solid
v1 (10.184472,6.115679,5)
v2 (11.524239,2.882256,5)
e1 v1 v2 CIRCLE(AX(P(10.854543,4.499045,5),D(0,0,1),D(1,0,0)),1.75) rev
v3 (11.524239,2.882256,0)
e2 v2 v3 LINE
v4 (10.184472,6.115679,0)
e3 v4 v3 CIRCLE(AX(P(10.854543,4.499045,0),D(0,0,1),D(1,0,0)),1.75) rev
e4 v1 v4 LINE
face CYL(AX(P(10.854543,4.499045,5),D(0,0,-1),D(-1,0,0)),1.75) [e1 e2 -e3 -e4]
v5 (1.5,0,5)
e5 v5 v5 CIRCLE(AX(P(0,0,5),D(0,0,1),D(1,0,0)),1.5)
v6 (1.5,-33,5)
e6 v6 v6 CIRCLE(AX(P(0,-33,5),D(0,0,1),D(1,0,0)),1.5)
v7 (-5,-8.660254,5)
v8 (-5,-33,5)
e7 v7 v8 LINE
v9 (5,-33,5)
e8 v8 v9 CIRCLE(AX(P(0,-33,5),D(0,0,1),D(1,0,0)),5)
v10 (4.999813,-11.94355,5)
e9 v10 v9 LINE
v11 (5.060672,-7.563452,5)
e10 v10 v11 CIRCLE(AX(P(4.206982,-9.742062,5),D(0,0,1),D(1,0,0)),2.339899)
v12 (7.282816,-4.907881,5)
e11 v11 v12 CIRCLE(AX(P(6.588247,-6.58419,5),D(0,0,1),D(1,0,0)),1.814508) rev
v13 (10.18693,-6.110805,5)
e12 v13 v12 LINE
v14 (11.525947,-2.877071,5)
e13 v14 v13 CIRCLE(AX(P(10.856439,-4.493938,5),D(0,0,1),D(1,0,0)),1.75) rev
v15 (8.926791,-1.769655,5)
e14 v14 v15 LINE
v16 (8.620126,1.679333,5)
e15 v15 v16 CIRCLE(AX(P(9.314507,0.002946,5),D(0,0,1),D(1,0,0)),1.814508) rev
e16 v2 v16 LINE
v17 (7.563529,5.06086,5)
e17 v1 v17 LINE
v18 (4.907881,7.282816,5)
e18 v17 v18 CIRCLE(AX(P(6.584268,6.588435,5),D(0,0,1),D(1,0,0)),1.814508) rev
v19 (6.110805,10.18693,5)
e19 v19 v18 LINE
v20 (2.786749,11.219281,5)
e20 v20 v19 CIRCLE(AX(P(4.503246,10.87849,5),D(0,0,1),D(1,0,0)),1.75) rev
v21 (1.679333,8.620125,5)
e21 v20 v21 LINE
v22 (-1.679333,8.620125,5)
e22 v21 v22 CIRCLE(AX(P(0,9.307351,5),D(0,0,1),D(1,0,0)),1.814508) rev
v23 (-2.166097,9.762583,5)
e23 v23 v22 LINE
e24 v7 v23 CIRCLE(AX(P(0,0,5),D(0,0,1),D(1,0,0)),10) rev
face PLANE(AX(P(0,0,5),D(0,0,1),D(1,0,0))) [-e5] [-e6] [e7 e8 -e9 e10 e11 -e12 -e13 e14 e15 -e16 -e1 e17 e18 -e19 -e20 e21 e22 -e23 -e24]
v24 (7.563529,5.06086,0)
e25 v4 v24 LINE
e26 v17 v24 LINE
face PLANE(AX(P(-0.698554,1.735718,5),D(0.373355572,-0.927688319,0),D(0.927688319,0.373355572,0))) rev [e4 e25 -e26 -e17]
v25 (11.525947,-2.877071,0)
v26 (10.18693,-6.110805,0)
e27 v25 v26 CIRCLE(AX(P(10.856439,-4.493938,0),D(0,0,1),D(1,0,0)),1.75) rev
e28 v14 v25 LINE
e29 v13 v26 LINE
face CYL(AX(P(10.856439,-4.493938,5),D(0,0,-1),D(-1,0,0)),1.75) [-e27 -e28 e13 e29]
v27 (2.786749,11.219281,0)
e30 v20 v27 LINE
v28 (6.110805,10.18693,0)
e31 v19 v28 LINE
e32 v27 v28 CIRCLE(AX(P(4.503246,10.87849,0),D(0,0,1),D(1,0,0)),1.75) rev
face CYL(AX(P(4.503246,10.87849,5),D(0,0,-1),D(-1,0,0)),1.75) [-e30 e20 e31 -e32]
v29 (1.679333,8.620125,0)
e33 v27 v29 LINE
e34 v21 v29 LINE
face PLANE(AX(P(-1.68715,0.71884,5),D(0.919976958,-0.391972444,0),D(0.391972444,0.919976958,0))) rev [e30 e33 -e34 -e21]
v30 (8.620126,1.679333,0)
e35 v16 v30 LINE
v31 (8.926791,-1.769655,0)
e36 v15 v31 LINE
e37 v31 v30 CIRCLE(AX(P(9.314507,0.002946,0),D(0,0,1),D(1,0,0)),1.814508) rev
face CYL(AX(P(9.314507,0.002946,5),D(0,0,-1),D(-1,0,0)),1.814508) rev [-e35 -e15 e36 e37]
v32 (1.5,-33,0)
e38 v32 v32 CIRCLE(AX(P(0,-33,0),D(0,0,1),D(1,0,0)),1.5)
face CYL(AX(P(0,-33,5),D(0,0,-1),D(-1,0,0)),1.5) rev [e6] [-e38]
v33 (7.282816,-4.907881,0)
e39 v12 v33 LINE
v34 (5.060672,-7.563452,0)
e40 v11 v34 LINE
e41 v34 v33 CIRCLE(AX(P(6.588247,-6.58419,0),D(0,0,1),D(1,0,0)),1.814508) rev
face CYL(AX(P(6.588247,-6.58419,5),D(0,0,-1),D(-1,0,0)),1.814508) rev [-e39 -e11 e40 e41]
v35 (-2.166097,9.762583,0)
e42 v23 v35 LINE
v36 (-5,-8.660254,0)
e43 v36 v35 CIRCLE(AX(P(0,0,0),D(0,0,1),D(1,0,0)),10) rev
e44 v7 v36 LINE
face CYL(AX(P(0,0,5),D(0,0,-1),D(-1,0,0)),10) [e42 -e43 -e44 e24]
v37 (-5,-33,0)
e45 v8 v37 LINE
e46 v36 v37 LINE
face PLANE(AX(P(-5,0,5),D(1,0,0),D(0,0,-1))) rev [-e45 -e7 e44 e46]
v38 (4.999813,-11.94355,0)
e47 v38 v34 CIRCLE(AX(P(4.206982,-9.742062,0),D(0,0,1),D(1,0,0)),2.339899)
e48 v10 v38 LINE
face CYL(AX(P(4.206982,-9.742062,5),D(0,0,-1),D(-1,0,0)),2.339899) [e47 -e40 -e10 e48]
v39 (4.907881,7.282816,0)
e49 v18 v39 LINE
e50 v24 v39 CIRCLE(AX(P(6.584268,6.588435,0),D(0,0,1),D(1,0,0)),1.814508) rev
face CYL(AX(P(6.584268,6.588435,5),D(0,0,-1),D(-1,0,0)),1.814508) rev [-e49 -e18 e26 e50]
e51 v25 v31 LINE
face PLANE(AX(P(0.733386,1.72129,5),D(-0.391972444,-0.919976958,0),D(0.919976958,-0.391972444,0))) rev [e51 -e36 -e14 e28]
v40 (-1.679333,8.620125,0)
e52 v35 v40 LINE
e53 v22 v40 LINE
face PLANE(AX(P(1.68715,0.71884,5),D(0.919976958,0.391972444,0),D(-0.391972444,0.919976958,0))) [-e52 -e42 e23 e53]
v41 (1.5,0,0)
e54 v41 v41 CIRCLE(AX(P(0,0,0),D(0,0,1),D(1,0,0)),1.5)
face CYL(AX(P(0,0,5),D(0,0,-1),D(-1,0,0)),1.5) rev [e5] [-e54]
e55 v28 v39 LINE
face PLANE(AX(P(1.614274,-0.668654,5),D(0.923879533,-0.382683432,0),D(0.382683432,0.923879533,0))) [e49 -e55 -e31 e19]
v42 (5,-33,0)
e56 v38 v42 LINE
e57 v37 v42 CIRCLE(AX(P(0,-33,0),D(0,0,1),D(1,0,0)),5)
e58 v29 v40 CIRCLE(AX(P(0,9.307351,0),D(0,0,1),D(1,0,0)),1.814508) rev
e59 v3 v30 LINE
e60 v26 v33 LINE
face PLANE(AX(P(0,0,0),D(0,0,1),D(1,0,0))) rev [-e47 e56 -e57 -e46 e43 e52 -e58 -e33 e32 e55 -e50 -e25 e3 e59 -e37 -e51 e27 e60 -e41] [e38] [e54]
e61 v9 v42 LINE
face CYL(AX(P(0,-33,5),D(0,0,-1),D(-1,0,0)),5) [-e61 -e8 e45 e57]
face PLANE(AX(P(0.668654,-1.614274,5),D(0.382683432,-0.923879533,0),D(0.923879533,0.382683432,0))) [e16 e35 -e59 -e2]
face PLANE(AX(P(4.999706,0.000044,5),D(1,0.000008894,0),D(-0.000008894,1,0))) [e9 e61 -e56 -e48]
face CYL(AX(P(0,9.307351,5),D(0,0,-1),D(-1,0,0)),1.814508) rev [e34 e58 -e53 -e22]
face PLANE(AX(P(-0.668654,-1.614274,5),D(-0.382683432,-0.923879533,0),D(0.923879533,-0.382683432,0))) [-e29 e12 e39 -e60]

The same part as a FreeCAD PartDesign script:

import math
import FreeCAD as App
import Part
import Sketcher
Q = App.Units.Quantity

doc = App.newDocument("Part")
body = doc.addObject("PartDesign::Body", "Body")

sketch1 = doc.addObject("Sketcher::SketchObject", "Sketch")
body.addObject(sketch1)
sketch1.AttachmentSupport = (doc.XY_Plane, [""])
sketch1.MapMode = "FlatFace"
sketch1.addGeometry(Part.LineSegment(App.Vector(2.8, 11.2, 0), App.Vector(1.7, 8.6, 0)), False)
sketch1.addGeometry(Part.ArcOfCircle(Part.Circle(App.Vector(0, 9.3, 0), App.Vector(0, 0, 1), 1.8), math.radians(-158), math.radians(-22)), False)
sketch1.addGeometry(Part.LineSegment(App.Vector(-1.7, 8.6, 0), App.Vector(-2.2, 9.8, 0)), False)
sketch1.addGeometry(Part.ArcOfCircle(Part.Circle(App.Vector(0, 0, 0), App.Vector(0, 0, 1), 10), math.radians(103), math.radians(240)), False)
sketch1.addGeometry(Part.LineSegment(App.Vector(-5, -8.7, 0), App.Vector(-5, -33, 0)), False)
sketch1.addGeometry(Part.ArcOfCircle(Part.Circle(App.Vector(0, -33, 0), App.Vector(0, 0, 1), 5), math.radians(180), math.radians(360)), False)
sketch1.addGeometry(Part.LineSegment(App.Vector(5, -33, 0), App.Vector(5, -11.9, 0)), False)
sketch1.addGeometry(Part.ArcOfCircle(Part.Circle(App.Vector(4.2, -9.7, 0), App.Vector(0, 0, 1), 2.3), math.radians(-70), math.radians(69)), False)
sketch1.addGeometry(Part.ArcOfCircle(Part.Circle(App.Vector(6.6, -6.6, 0), App.Vector(0, 0, 1), 1.8), math.radians(67), math.radians(213)), False)
sketch1.addGeometry(Part.LineSegment(App.Vector(7.3, -4.9, 0), App.Vector(10.2, -6.1, 0)), False)
sketch1.addGeometry(Part.ArcOfCircle(Part.Circle(App.Vector(10.9, -4.5, 0), App.Vector(0, 0, 1), 1.7), math.radians(-112), math.radians(68)), False)
sketch1.addGeometry(Part.LineSegment(App.Vector(11.5, -2.9, 0), App.Vector(8.9, -1.8, 0)), False)
sketch1.addGeometry(Part.ArcOfCircle(Part.Circle(App.Vector(9.3, 0, 0), App.Vector(0, 0, 1), 1.8), math.radians(112), math.radians(258)), False)
sketch1.addGeometry(Part.LineSegment(App.Vector(8.6, 1.7, 0), App.Vector(11.5, 2.9, 0)), False)
sketch1.addGeometry(Part.ArcOfCircle(Part.Circle(App.Vector(10.9, 4.5, 0), App.Vector(0, 0, 1), 1.8), math.radians(-67), math.radians(113)), False)
sketch1.addGeometry(Part.LineSegment(App.Vector(10.2, 6.1, 0), App.Vector(7.6, 5.1, 0)), False)
sketch1.addGeometry(Part.ArcOfCircle(Part.Circle(App.Vector(6.6, 6.6, 0), App.Vector(0, 0, 1), 1.8), math.radians(158), math.radians(303)), False)
sketch1.addGeometry(Part.LineSegment(App.Vector(4.9, 7.3, 0), App.Vector(6.1, 10.2, 0)), False)
sketch1.addGeometry(Part.ArcOfCircle(Part.Circle(App.Vector(4.5, 10.9, 0), App.Vector(0, 0, 1), 1.8), math.radians(-23), math.radians(169)), False)
sketch1.addGeometry(Part.Circle(App.Vector(0, -33, 0), App.Vector(0, 0, 1), 1.5), False)
sketch1.addGeometry(Part.Circle(App.Vector(0, 0, 0), App.Vector(0, 0, 1), 1.5), False)
sketch1.addConstraint(Sketcher.Constraint("Coincident", 0, 2, 1, 2))
sketch1.addConstraint(Sketcher.Constraint("Coincident", 1, 1, 2, 1))
sketch1.addConstraint(Sketcher.Constraint("Coincident", 2, 2, 3, 1))
sketch1.addConstraint(Sketcher.Constraint("Coincident", 3, 2, 4, 1))
sketch1.addConstraint(Sketcher.Constraint("Tangent", 4, 2, 5, 1))
sketch1.addConstraint(Sketcher.Constraint("Coincident", 5, 2, 6, 1))
sketch1.addConstraint(Sketcher.Constraint("Coincident", 6, 2, 7, 1))
sketch1.addConstraint(Sketcher.Constraint("Coincident", 7, 2, 8, 2))
sketch1.addConstraint(Sketcher.Constraint("Coincident", 8, 1, 9, 1))
sketch1.addConstraint(Sketcher.Constraint("Coincident", 9, 2, 10, 1))
sketch1.addConstraint(Sketcher.Constraint("Coincident", 10, 2, 11, 1))
sketch1.addConstraint(Sketcher.Constraint("Coincident", 11, 2, 12, 2))
sketch1.addConstraint(Sketcher.Constraint("Tangent", 12, 1, 13, 1))
sketch1.addConstraint(Sketcher.Constraint("Tangent", 13, 2, 14, 1))
sketch1.addConstraint(Sketcher.Constraint("Coincident", 14, 2, 15, 1))
sketch1.addConstraint(Sketcher.Constraint("Coincident", 15, 2, 16, 2))
sketch1.addConstraint(Sketcher.Constraint("Tangent", 16, 1, 17, 1))
sketch1.addConstraint(Sketcher.Constraint("Coincident", 17, 2, 18, 1))
sketch1.addConstraint(Sketcher.Constraint("Coincident", 18, 2, 0, 1))
sketch1.addConstraint(Sketcher.Constraint("Vertical", 4))
sketch1.addConstraint(Sketcher.Constraint("Coincident", 3, 3, -1, 1))
sketch1.addConstraint(Sketcher.Constraint("Coincident", 20, 3, -1, 1))
sketch1.addConstraint(Sketcher.Constraint("Coincident", 19, 3, 5, 3))
sketch1.addConstraint(Sketcher.Constraint("Equal", 1, 8))
sketch1.addConstraint(Sketcher.Constraint("Equal", 8, 12))
sketch1.addConstraint(Sketcher.Constraint("Equal", 10, 14))
sketch1.addConstraint(Sketcher.Constraint("Equal", 12, 16))
sketch1.addConstraint(Sketcher.Constraint("Equal", 14, 18))
sketch1.addConstraint(Sketcher.Constraint("Equal", 19, 20))
sketch1.addConstraint(Sketcher.Constraint("Symmetric", 0, 2, 1, 1, -2))
sketch1.addConstraint(Sketcher.Constraint("Symmetric", 4, 2, 5, 2, -2))
sketch1.addConstraint(Sketcher.Constraint("Perpendicular", 0, 11))
sketch1.addConstraint(Sketcher.Constraint("Perpendicular", 9, 17))
sketch1.addConstraint(Sketcher.Constraint("Equal", 0, 11))
sketch1.addConstraint(Sketcher.Constraint("Equal", 9, 13))
sketch1.addConstraint(Sketcher.Constraint("Equal", 11, 15))
sketch1.addConstraint(Sketcher.Constraint("Equal", 13, 17))
sketch1.addConstraint(Sketcher.Constraint("Diameter", 19, 3.0))
sketch1.addConstraint(Sketcher.Constraint("Radius", 3, 10.0))
sketch1.addConstraint(Sketcher.Constraint("Radius", 5, 5.0))
sketch1.addConstraint(Sketcher.Constraint("Radius", 10, 1.75))
sketch1.addConstraint(Sketcher.Constraint("DistanceY", 5, 3, -1, 1, 33.0))
sketch1.addConstraint(Sketcher.Constraint("Angle", 9, Q("-22.5 deg")))
sketch1.addConstraint(Sketcher.Constraint("Angle", 13, Q("22.5 deg")))
sketch1.addConstraint(Sketcher.Constraint("Radius", 7, 2.339899))
sketch1.addConstraint(Sketcher.Constraint("Radius", 1, 1.814508))
sketch1.addConstraint(Sketcher.Constraint("DistanceY", 12, 3, 14, 3, 4.496099))
sketch1.addConstraint(Sketcher.Constraint("DistanceX", 1, 1, 16, 3, 8.263601))
sketch1.addConstraint(Sketcher.Constraint("DistanceY", 7, 2, 12, 3, 7.566398))
sketch1.addConstraint(Sketcher.Constraint("DistanceX", 8, 3, 10, 2, 4.9377))
sketch1.addConstraint(Sketcher.Constraint("DistanceY", 11, 2, 12, 3, 1.772601))
sketch1.addConstraint(Sketcher.Constraint("DistanceY", 12, 1, 16, 3, 4.909101))
sketch1.addConstraint(Sketcher.Constraint("Distance", 0, 2.825241))
sketch1.addConstraint(Sketcher.Constraint("Distance", 6, 21.05645))
sketch1.addConstraint(Sketcher.Constraint("DistanceY", -1, 1, 1, 3, 9.307351))
sketch1.addConstraint(Sketcher.Constraint("DistanceY", 7, 3, -1, 1, 9.742062))
sketch1.addConstraint(Sketcher.Constraint("DistanceY", 8, 3, -1, 1, 6.58419))
sketch1.addConstraint(Sketcher.Constraint("DistanceX", -1, 1, 10, 3, 10.856439))
sketch1.addConstraint(Sketcher.Constraint("DistanceY", -1, 1, 18, 3, 10.87849))
sketch1.addConstraint(Sketcher.Constraint("DistanceY", 7, 2, -1, 1, 7.563452))
sketch1.addConstraint(Sketcher.Constraint("DistanceY", 8, 1, -1, 1, 4.907881))
sketch1.addConstraint(Sketcher.Constraint("DistanceX", -1, 1, 9, 2, 10.18693))
sketch1.addConstraint(Sketcher.Constraint("DistanceX", -1, 1, 14, 2, 10.184472))
sketch1.addConstraint(Sketcher.Constraint("DistanceY", 1, 3, 2, 2, 0.455232))
pad1 = doc.addObject("PartDesign::Pad", "Pad")
body.addObject(pad1)
pad1.Profile = sketch1
pad1.Length = 5

doc.recompute()
